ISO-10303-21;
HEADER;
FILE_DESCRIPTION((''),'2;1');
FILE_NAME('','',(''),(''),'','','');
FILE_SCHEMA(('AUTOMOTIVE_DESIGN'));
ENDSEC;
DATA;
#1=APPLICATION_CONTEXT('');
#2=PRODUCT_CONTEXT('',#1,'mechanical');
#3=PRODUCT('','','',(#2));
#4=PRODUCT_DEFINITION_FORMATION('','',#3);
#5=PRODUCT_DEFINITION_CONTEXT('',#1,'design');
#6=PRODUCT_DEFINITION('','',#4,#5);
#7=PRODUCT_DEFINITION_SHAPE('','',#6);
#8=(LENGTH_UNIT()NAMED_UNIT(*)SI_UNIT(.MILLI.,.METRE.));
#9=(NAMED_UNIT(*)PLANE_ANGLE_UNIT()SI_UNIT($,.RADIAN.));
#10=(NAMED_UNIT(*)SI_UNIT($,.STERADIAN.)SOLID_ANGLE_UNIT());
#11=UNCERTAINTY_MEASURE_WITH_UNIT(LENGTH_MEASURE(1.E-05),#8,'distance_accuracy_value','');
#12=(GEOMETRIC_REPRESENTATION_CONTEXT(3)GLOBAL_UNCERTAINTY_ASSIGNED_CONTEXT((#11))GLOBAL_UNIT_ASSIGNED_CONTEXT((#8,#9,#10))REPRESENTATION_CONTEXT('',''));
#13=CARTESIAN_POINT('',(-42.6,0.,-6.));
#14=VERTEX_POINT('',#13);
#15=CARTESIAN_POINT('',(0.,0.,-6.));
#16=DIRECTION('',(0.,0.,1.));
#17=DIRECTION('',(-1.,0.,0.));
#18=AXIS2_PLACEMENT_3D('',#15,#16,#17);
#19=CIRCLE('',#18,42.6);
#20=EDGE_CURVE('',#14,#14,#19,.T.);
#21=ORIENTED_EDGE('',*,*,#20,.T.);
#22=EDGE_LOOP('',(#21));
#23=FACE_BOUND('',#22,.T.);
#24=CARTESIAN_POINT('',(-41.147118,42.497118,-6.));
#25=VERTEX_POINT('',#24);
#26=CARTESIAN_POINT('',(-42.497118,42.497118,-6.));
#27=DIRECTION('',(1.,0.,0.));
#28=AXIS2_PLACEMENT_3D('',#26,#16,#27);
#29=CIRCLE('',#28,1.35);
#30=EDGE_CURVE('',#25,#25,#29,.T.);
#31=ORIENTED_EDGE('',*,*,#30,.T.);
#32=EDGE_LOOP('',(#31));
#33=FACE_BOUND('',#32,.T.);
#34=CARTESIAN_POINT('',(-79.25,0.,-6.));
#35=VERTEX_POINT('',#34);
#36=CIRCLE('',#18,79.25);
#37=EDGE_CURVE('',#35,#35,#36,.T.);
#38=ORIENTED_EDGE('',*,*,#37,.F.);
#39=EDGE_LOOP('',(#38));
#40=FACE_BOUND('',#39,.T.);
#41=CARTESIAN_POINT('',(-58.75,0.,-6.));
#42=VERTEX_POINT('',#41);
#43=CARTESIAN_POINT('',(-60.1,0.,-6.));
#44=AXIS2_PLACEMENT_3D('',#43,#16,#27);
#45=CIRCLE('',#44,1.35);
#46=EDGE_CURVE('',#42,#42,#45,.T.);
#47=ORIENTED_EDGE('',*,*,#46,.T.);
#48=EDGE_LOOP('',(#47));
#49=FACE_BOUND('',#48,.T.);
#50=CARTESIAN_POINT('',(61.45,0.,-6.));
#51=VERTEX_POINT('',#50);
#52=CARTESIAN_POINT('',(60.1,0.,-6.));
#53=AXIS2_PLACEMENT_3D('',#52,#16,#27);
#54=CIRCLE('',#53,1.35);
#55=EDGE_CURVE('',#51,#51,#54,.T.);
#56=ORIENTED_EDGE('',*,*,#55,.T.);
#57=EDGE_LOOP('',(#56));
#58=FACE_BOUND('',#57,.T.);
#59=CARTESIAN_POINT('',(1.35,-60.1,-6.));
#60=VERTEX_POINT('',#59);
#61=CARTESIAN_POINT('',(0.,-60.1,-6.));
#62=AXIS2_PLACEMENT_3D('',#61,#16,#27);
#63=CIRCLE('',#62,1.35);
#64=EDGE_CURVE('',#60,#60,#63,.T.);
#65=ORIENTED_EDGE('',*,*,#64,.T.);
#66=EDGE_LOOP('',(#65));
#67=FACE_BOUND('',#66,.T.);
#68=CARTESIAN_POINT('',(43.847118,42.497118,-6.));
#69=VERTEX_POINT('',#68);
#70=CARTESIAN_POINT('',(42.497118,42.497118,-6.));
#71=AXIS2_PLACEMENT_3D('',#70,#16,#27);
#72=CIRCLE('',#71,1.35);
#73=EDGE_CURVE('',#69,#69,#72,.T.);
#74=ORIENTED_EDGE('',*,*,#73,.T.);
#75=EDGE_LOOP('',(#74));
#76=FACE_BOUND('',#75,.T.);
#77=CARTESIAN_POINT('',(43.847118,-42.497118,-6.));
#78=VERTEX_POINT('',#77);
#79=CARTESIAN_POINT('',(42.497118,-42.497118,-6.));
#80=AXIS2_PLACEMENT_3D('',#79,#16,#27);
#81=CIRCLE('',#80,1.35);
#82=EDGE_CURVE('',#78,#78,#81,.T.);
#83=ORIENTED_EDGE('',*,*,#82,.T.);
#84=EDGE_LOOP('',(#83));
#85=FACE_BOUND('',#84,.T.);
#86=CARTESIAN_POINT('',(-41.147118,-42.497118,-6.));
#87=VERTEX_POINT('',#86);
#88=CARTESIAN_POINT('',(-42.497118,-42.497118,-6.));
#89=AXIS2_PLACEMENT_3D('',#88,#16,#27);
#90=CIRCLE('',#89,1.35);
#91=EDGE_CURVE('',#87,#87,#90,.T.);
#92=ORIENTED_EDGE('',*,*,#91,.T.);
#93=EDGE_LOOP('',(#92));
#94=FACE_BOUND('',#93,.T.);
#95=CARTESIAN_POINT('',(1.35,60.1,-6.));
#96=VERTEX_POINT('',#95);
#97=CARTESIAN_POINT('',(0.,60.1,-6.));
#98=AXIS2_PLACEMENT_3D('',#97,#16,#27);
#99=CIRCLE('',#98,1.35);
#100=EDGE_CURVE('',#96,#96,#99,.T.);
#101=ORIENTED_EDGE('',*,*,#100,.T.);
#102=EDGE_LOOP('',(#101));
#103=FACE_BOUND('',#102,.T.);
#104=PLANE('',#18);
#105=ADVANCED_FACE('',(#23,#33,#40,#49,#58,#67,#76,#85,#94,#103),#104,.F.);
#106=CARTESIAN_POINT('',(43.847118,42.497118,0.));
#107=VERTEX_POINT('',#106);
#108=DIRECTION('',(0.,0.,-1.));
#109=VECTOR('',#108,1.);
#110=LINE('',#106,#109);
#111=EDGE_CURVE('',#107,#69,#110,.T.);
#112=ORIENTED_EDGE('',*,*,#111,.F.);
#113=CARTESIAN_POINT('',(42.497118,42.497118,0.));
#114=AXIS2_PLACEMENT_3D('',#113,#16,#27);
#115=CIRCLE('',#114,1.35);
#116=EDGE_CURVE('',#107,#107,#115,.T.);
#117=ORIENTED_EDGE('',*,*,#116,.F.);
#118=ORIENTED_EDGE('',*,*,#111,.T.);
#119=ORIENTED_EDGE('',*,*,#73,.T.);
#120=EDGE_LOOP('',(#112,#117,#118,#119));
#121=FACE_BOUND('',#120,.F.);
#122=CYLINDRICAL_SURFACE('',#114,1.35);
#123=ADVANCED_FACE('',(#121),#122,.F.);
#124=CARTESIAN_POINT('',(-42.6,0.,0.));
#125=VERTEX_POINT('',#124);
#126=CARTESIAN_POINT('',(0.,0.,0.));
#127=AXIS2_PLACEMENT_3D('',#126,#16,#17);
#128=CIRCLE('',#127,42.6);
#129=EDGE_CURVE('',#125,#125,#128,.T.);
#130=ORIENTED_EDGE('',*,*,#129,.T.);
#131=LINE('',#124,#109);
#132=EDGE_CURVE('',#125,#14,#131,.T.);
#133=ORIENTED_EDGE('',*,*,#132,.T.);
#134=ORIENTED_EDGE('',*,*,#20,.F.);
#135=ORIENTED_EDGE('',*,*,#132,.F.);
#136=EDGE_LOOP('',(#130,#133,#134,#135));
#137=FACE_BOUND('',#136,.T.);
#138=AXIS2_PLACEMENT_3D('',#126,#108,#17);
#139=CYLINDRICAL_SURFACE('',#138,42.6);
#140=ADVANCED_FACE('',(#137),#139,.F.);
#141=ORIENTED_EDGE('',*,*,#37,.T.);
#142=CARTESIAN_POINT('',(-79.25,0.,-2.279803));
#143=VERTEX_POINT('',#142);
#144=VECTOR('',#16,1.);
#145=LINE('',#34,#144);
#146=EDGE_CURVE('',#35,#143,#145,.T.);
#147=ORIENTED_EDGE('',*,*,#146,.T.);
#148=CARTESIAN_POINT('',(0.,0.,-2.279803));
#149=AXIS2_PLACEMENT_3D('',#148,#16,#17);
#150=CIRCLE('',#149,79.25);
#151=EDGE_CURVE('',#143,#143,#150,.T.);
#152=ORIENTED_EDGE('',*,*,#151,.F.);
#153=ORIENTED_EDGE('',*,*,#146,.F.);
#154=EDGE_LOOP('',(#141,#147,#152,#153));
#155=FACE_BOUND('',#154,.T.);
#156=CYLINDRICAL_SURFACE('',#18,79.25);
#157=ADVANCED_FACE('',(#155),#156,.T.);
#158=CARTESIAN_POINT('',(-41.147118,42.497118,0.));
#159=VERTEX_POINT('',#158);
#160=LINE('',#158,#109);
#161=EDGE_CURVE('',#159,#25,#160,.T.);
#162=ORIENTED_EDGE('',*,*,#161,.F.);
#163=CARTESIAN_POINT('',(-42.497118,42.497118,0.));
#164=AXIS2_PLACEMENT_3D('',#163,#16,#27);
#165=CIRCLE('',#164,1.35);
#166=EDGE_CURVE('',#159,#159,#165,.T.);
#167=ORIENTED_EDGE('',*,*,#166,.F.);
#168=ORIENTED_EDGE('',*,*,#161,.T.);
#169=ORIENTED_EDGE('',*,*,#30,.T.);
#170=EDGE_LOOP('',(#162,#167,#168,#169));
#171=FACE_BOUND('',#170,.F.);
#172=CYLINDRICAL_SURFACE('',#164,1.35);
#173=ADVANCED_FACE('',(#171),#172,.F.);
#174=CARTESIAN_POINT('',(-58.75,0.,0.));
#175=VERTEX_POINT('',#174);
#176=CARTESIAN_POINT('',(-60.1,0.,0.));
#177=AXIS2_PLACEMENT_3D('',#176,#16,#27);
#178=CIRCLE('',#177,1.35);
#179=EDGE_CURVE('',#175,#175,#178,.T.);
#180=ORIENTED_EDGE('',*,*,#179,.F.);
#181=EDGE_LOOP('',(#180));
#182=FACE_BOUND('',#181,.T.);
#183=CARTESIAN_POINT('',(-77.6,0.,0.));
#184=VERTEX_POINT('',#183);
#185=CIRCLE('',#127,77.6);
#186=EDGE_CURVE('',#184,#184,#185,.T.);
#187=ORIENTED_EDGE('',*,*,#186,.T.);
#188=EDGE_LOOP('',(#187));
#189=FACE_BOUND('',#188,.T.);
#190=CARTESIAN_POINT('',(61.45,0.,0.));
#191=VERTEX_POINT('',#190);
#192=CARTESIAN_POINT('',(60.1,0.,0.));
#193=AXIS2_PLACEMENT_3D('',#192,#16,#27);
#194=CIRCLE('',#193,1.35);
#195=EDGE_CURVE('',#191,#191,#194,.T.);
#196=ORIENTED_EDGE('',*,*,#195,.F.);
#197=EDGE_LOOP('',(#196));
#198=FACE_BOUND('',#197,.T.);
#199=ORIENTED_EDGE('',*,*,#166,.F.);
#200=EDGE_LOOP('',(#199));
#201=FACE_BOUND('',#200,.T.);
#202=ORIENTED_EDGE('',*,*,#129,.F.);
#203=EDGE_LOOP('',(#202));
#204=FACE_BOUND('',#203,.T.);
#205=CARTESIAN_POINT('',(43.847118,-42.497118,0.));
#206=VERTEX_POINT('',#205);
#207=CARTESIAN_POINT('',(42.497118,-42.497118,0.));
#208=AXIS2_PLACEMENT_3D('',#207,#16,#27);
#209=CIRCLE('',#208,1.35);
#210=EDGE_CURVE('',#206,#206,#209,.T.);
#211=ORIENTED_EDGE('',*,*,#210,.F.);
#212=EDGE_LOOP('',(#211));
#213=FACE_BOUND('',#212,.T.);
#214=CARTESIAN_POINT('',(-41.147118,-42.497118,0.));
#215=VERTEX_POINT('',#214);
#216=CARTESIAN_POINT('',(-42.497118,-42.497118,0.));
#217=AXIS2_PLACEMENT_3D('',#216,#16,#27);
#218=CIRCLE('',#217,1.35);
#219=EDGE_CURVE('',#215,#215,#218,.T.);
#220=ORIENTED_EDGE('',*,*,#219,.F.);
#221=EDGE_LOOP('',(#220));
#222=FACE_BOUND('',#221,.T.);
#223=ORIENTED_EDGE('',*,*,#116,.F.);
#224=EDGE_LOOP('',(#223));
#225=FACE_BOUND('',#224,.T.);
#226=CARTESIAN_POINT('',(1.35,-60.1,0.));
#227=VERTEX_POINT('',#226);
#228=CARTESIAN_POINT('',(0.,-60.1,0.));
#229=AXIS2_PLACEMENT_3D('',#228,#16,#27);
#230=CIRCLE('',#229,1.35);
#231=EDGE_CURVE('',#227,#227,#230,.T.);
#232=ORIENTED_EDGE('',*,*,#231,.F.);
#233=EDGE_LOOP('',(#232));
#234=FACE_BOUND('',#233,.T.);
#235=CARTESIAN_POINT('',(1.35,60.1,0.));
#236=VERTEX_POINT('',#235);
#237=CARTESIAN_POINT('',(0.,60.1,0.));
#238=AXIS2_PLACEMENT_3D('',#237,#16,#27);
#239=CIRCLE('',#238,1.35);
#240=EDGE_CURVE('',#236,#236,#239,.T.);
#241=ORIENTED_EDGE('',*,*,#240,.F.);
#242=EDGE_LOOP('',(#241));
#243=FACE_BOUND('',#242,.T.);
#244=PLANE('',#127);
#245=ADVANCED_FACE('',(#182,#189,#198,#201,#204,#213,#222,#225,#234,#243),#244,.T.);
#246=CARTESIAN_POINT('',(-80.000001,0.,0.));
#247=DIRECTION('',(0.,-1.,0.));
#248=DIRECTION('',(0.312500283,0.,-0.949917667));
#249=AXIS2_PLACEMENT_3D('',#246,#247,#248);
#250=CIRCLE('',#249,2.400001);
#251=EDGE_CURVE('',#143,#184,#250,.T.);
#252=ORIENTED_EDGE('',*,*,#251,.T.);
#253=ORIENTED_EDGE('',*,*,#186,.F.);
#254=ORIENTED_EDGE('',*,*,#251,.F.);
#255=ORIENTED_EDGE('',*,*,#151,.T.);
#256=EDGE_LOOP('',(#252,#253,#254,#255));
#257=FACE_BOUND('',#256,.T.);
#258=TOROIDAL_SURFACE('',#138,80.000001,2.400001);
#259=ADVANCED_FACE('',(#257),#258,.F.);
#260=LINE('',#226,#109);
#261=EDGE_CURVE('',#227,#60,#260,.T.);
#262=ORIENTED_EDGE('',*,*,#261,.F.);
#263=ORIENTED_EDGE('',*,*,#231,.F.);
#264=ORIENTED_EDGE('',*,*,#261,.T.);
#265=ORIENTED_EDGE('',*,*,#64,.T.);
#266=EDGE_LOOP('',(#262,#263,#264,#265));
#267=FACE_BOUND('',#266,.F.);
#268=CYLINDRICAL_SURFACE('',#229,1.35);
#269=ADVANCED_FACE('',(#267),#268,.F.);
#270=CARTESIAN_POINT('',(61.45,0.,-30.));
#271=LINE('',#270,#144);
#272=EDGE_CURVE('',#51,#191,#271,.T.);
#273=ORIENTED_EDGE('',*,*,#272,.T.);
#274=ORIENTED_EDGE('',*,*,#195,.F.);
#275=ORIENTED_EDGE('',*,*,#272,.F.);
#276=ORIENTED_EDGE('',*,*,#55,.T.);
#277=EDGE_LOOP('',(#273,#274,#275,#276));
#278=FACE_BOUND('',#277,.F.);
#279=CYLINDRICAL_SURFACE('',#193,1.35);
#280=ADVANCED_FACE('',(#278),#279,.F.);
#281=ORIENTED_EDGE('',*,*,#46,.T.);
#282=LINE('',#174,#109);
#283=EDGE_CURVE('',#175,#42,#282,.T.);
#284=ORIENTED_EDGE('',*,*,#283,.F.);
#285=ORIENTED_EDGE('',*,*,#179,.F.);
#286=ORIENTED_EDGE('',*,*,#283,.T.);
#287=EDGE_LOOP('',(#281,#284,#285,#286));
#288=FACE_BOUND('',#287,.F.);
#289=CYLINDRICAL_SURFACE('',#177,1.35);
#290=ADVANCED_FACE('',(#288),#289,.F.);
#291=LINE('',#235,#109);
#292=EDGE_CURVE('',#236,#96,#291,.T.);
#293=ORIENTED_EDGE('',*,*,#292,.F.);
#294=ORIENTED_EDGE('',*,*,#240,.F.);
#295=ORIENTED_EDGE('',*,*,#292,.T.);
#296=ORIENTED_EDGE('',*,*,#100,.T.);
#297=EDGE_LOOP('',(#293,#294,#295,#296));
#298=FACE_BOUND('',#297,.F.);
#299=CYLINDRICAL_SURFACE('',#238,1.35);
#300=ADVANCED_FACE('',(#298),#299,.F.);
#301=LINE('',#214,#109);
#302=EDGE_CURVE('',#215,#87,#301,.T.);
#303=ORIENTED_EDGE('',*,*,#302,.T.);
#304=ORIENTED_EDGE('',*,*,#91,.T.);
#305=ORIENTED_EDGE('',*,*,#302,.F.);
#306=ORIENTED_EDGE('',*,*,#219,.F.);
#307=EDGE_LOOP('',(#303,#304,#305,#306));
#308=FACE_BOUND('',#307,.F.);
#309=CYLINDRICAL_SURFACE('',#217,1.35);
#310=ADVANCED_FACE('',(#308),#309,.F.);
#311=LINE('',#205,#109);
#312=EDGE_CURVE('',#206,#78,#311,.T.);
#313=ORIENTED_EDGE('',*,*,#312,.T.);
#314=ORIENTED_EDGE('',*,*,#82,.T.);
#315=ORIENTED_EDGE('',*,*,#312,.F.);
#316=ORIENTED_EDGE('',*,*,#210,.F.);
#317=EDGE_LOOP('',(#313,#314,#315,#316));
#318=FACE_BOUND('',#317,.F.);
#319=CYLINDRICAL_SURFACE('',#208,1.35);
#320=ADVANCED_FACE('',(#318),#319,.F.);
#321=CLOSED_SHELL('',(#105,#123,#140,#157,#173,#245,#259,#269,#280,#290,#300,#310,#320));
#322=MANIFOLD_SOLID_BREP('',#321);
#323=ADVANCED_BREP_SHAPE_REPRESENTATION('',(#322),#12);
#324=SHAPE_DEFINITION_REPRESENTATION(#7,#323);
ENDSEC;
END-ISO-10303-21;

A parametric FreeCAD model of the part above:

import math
import FreeCAD as App
import Part
import Sketcher

V = App.Vector

doc = App.newDocument("Part")
body = doc.addObject("PartDesign::Body", "Body")
body.AllowCompound = True

sketch1 = body.newObject("Sketcher::SketchObject", "Sketch")
sketch1.AttachmentSupport = (doc.getObject("XY_Plane"), [""])
sketch1.MapMode = "FlatFace"
sketch1.addGeometry(Part.Circle(V(42.5, 42.5, 0), V(0, 0, 1), 1.4), False)
sketch1.addGeometry(Part.Circle(V(0, 60.1, 0), V(0, 0, 1), 1.4), False)
sketch1.addGeometry(Part.Circle(V(-42.5, 42.5, 0), V(0, 0, 1), 1.4), False)
sketch1.addGeometry(Part.Circle(V(-60.1, 0, 0), V(0, 0, 1), 1.4), False)
sketch1.addGeometry(Part.Circle(V(-42.5, -42.5, 0), V(0, 0, 1), 1.4), False)
sketch1.addGeometry(Part.Circle(V(0, -60.1, 0), V(0, 0, 1), 1.4), False)
sketch1.addGeometry(Part.Circle(V(42.5, -42.5, 0), V(0, 0, 1), 1.4), False)
sketch1.addGeometry(Part.Circle(V(60.1, 0, 0), V(0, 0, 1), 1.4), False)
sketch1.addConstraint(Sketcher.Constraint("Equal", 0, 1))
sketch1.addConstraint(Sketcher.Constraint("Equal", 1, 2))
sketch1.addConstraint(Sketcher.Constraint("Equal", 2, 3))
sketch1.addConstraint(Sketcher.Constraint("Equal", 3, 4))
sketch1.addConstraint(Sketcher.Constraint("Equal", 4, 5))
sketch1.addConstraint(Sketcher.Constraint("Equal", 5, 6))
sketch1.addConstraint(Sketcher.Constraint("Equal", 6, 7))
sketch1.addConstraint(Sketcher.Constraint("Symmetric", 0, 3, 4, 3, -1, 1))
sketch1.addConstraint(Sketcher.Constraint("Symmetric", 1, 3, 5, 3, -1, 1))
sketch1.addConstraint(Sketcher.Constraint("Symmetric", 2, 3, 6, 3, -1, 1))
sketch1.addConstraint(Sketcher.Constraint("Symmetric", 3, 3, 7, 3, -1, 1))
sketch1.addConstraint(Sketcher.Constraint("Symmetric", 0, 3, 2, 3, -2))
sketch1.addConstraint(Sketcher.Constraint("PointOnObject", 1, 3, -2))
sketch1.addConstraint(Sketcher.Constraint("PointOnObject", 3, 3, -1))
sketch1.addConstraint(Sketcher.Constraint("Diameter", 0, 2.7))
sketch1.addConstraint(Sketcher.Constraint("DistanceY", -1, 1, 1, 3, 60.1))
sketch1.addConstraint(Sketcher.Constraint("DistanceX", 3, 3, -1, 1, 60.1))
sketch1.addConstraint(Sketcher.Constraint("DistanceX", -1, 1, 0, 3, 42.497118))
sketch1.addConstraint(Sketcher.Constraint("DistanceY", -1, 1, 0, 3, 42.497118))
pad1 = body.newObject("PartDesign::Pad", "Pad")
pad1.Profile = sketch1
pad1.Length = 60
pad1.Midplane = True
body2 = doc.addObject("PartDesign::Body", "Body001")

sketch2 = body2.newObject("Sketcher::SketchObject", "Sketch001")
sketch2.AttachmentSupport = (doc.getObject("XZ_Plane001"), [""])
sketch2.MapMode = "FlatFace"
sketch2.addGeometry(Part.ArcOfCircle(Part.Circle(V(-80, 0, 0), V(0, 0, 1), 2.4), math.radians(-72), math.radians(0)), False)
sketch2.addGeometry(Part.LineSegment(V(-79.2, -2.3, 0), V(-79.2, -6, 0)), False)
sketch2.addGeometry(Part.LineSegment(V(-79.2, -6, 0), V(-42.6, -6, 0)), False)
sketch2.addGeometry(Part.LineSegment(V(-42.6, -6, 0), V(-42.6, 0, 0)), False)
sketch2.addGeometry(Part.LineSegment(V(-42.6, 0, 0), V(-77.6, 0, 0)), False)
sketch2.addConstraint(Sketcher.Constraint("Coincident", 0, 1, 1, 1))
sketch2.addConstraint(Sketcher.Constraint("Coincident", 1, 2, 2, 1))
sketch2.addConstraint(Sketcher.Constraint("Coincident", 2, 2, 3, 1))
sketch2.addConstraint(Sketcher.Constraint("Coincident", 3, 2, 4, 1))
sketch2.addConstraint(Sketcher.Constraint("Coincident", 4, 2, 0, 2))
sketch2.addConstraint(Sketcher.Constraint("Vertical", 1))
sketch2.addConstraint(Sketcher.Constraint("Horizontal", 2))
sketch2.addConstraint(Sketcher.Constraint("Vertical", 3))
sketch2.addConstraint(Sketcher.Constraint("Horizontal", 4))
sketch2.addConstraint(Sketcher.Constraint("PointOnObject", 0, 3, -1))
sketch2.addConstraint(Sketcher.Constraint("PointOnObject", 3, 2, -1))
sketch2.addConstraint(Sketcher.Constraint("Radius", 0, 2.400001))
sketch2.addConstraint(Sketcher.Constraint("DistanceX", 4, 2, 4, 1, 35.0))
sketch2.addConstraint(Sketcher.Constraint("DistanceY", 3, 1, 3, 2, 6.0))
sketch2.addConstraint(Sketcher.Constraint("DistanceX", 0, 3, -1, 1, 80.000001))
sketch2.addConstraint(Sketcher.Constraint("DistanceX", 2, 1, 2, 2, 36.65))
revolution = body2.newObject("PartDesign::Revolution", "Revolution")
revolution.Profile = sketch2
revolution.ReferenceAxis = (sketch2, ["V_Axis"])
revolution.Angle = 360
doc.recompute()

boolean = body2.newObject("PartDesign::Boolean", "Boolean")
boolean.Type = "Cut"
boolean.addObjects([body])

doc.recompute()
